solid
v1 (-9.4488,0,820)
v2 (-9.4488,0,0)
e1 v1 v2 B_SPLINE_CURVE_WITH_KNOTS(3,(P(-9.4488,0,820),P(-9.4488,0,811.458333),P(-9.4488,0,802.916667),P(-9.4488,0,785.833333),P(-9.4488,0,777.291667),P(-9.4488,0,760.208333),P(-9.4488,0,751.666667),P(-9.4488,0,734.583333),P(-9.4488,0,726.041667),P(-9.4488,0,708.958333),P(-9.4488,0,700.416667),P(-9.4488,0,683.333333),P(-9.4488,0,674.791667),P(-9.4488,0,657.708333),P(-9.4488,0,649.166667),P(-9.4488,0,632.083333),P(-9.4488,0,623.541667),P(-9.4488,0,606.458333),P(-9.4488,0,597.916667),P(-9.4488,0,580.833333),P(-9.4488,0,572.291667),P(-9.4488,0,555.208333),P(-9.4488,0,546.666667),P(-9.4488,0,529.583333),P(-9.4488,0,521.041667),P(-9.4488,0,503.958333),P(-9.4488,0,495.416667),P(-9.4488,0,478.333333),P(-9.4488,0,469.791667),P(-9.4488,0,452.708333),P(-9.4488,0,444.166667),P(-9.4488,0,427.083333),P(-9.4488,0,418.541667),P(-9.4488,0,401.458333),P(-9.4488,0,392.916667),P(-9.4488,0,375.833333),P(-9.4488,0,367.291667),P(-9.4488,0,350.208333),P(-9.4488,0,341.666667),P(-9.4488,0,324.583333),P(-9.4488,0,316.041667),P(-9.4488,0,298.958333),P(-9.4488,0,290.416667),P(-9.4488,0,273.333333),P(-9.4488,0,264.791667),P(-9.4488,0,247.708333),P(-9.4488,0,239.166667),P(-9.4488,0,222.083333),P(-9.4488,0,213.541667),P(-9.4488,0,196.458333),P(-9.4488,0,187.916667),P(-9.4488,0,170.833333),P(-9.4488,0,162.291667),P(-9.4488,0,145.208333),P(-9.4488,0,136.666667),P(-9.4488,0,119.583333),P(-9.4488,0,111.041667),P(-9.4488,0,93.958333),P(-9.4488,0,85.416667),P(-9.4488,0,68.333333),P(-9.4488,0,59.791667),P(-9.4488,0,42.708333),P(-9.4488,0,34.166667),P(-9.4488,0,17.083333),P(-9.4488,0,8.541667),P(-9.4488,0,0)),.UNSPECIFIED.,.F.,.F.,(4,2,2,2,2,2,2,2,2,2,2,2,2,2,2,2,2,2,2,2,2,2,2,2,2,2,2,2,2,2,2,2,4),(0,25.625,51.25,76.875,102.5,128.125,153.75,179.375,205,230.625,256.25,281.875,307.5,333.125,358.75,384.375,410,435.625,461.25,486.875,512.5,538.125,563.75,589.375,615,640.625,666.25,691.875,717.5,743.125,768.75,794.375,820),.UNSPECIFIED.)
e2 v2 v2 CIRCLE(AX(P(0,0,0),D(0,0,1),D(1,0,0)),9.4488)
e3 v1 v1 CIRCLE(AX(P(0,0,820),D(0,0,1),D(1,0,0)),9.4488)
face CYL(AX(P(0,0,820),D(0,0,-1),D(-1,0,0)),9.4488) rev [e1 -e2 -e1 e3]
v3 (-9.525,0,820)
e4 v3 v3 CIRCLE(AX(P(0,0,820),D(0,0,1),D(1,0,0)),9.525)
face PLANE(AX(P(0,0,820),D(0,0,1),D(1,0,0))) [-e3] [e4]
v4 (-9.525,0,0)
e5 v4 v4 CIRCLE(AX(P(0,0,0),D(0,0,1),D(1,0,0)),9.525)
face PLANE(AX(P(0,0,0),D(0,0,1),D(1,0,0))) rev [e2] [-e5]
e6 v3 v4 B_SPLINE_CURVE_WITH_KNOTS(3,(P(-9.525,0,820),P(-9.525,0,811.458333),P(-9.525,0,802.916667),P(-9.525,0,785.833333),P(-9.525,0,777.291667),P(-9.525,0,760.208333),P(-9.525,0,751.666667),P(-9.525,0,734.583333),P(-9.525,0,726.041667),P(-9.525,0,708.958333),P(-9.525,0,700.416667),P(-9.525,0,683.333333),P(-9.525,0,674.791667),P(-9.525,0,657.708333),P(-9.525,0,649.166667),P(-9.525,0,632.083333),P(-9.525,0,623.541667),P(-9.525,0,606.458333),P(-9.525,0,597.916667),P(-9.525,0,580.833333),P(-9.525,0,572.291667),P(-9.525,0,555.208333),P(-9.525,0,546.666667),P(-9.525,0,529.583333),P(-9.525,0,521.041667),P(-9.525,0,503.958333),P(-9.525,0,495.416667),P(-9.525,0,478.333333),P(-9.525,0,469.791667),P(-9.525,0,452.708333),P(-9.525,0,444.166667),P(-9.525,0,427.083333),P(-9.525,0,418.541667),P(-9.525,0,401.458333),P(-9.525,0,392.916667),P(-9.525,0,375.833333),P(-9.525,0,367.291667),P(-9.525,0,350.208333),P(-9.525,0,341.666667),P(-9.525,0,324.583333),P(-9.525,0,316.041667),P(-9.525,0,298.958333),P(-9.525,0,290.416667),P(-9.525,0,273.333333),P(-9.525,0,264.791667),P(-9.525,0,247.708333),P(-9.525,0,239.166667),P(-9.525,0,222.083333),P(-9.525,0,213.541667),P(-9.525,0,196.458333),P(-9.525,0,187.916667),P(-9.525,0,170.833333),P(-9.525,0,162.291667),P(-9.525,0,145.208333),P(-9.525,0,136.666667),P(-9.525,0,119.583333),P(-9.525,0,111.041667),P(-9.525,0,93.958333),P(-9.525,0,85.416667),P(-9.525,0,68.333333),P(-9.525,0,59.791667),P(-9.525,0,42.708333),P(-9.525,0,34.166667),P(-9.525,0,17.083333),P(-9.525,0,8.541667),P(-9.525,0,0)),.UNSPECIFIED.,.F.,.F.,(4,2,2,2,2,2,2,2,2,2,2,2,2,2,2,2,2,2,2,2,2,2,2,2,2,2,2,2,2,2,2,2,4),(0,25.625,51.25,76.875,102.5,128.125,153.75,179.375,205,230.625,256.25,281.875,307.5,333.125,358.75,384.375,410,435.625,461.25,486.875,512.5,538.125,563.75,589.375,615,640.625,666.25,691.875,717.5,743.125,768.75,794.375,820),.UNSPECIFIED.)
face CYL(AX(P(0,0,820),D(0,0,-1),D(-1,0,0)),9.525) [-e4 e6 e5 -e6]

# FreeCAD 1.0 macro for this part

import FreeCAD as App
import Part
import Sketcher
Q = App.Units.Quantity

doc = App.newDocument("Part")
body = doc.addObject("PartDesign::Body", "Body")

sketch1 = doc.addObject("Sketcher::SketchObject", "Sketch")
body.addObject(sketch1)
sketch1.AttachmentSupport = (doc.XY_Plane, [""])
sketch1.MapMode = "FlatFace"
sketch1.addGeometry(Part.Circle(App.Vector(0, 0, 0), App.Vector(0, 0, 1), 10), False)
sketch1.addGeometry(Part.Circle(App.Vector(0, 0, 0), App.Vector(0, 0, 1), 9), False)
sketch1.addConstraint(Sketcher.Constraint("Coincident", 0, 3, -1, 1))
sketch1.addConstraint(Sketcher.Constraint("Coincident", 1, 3, -1, 1))
sketch1.addConstraint(Sketcher.Constraint("Diameter", 0, Q("0.75 in")))
sketch1.addConstraint(Sketcher.Constraint("Diameter", 1, Q("0.744 in")))
pad1 = doc.addObject("PartDesign::Pad", "Pad")
body.addObject(pad1)
pad1.Profile = sketch1
pad1.Length = 820

doc.recompute()
